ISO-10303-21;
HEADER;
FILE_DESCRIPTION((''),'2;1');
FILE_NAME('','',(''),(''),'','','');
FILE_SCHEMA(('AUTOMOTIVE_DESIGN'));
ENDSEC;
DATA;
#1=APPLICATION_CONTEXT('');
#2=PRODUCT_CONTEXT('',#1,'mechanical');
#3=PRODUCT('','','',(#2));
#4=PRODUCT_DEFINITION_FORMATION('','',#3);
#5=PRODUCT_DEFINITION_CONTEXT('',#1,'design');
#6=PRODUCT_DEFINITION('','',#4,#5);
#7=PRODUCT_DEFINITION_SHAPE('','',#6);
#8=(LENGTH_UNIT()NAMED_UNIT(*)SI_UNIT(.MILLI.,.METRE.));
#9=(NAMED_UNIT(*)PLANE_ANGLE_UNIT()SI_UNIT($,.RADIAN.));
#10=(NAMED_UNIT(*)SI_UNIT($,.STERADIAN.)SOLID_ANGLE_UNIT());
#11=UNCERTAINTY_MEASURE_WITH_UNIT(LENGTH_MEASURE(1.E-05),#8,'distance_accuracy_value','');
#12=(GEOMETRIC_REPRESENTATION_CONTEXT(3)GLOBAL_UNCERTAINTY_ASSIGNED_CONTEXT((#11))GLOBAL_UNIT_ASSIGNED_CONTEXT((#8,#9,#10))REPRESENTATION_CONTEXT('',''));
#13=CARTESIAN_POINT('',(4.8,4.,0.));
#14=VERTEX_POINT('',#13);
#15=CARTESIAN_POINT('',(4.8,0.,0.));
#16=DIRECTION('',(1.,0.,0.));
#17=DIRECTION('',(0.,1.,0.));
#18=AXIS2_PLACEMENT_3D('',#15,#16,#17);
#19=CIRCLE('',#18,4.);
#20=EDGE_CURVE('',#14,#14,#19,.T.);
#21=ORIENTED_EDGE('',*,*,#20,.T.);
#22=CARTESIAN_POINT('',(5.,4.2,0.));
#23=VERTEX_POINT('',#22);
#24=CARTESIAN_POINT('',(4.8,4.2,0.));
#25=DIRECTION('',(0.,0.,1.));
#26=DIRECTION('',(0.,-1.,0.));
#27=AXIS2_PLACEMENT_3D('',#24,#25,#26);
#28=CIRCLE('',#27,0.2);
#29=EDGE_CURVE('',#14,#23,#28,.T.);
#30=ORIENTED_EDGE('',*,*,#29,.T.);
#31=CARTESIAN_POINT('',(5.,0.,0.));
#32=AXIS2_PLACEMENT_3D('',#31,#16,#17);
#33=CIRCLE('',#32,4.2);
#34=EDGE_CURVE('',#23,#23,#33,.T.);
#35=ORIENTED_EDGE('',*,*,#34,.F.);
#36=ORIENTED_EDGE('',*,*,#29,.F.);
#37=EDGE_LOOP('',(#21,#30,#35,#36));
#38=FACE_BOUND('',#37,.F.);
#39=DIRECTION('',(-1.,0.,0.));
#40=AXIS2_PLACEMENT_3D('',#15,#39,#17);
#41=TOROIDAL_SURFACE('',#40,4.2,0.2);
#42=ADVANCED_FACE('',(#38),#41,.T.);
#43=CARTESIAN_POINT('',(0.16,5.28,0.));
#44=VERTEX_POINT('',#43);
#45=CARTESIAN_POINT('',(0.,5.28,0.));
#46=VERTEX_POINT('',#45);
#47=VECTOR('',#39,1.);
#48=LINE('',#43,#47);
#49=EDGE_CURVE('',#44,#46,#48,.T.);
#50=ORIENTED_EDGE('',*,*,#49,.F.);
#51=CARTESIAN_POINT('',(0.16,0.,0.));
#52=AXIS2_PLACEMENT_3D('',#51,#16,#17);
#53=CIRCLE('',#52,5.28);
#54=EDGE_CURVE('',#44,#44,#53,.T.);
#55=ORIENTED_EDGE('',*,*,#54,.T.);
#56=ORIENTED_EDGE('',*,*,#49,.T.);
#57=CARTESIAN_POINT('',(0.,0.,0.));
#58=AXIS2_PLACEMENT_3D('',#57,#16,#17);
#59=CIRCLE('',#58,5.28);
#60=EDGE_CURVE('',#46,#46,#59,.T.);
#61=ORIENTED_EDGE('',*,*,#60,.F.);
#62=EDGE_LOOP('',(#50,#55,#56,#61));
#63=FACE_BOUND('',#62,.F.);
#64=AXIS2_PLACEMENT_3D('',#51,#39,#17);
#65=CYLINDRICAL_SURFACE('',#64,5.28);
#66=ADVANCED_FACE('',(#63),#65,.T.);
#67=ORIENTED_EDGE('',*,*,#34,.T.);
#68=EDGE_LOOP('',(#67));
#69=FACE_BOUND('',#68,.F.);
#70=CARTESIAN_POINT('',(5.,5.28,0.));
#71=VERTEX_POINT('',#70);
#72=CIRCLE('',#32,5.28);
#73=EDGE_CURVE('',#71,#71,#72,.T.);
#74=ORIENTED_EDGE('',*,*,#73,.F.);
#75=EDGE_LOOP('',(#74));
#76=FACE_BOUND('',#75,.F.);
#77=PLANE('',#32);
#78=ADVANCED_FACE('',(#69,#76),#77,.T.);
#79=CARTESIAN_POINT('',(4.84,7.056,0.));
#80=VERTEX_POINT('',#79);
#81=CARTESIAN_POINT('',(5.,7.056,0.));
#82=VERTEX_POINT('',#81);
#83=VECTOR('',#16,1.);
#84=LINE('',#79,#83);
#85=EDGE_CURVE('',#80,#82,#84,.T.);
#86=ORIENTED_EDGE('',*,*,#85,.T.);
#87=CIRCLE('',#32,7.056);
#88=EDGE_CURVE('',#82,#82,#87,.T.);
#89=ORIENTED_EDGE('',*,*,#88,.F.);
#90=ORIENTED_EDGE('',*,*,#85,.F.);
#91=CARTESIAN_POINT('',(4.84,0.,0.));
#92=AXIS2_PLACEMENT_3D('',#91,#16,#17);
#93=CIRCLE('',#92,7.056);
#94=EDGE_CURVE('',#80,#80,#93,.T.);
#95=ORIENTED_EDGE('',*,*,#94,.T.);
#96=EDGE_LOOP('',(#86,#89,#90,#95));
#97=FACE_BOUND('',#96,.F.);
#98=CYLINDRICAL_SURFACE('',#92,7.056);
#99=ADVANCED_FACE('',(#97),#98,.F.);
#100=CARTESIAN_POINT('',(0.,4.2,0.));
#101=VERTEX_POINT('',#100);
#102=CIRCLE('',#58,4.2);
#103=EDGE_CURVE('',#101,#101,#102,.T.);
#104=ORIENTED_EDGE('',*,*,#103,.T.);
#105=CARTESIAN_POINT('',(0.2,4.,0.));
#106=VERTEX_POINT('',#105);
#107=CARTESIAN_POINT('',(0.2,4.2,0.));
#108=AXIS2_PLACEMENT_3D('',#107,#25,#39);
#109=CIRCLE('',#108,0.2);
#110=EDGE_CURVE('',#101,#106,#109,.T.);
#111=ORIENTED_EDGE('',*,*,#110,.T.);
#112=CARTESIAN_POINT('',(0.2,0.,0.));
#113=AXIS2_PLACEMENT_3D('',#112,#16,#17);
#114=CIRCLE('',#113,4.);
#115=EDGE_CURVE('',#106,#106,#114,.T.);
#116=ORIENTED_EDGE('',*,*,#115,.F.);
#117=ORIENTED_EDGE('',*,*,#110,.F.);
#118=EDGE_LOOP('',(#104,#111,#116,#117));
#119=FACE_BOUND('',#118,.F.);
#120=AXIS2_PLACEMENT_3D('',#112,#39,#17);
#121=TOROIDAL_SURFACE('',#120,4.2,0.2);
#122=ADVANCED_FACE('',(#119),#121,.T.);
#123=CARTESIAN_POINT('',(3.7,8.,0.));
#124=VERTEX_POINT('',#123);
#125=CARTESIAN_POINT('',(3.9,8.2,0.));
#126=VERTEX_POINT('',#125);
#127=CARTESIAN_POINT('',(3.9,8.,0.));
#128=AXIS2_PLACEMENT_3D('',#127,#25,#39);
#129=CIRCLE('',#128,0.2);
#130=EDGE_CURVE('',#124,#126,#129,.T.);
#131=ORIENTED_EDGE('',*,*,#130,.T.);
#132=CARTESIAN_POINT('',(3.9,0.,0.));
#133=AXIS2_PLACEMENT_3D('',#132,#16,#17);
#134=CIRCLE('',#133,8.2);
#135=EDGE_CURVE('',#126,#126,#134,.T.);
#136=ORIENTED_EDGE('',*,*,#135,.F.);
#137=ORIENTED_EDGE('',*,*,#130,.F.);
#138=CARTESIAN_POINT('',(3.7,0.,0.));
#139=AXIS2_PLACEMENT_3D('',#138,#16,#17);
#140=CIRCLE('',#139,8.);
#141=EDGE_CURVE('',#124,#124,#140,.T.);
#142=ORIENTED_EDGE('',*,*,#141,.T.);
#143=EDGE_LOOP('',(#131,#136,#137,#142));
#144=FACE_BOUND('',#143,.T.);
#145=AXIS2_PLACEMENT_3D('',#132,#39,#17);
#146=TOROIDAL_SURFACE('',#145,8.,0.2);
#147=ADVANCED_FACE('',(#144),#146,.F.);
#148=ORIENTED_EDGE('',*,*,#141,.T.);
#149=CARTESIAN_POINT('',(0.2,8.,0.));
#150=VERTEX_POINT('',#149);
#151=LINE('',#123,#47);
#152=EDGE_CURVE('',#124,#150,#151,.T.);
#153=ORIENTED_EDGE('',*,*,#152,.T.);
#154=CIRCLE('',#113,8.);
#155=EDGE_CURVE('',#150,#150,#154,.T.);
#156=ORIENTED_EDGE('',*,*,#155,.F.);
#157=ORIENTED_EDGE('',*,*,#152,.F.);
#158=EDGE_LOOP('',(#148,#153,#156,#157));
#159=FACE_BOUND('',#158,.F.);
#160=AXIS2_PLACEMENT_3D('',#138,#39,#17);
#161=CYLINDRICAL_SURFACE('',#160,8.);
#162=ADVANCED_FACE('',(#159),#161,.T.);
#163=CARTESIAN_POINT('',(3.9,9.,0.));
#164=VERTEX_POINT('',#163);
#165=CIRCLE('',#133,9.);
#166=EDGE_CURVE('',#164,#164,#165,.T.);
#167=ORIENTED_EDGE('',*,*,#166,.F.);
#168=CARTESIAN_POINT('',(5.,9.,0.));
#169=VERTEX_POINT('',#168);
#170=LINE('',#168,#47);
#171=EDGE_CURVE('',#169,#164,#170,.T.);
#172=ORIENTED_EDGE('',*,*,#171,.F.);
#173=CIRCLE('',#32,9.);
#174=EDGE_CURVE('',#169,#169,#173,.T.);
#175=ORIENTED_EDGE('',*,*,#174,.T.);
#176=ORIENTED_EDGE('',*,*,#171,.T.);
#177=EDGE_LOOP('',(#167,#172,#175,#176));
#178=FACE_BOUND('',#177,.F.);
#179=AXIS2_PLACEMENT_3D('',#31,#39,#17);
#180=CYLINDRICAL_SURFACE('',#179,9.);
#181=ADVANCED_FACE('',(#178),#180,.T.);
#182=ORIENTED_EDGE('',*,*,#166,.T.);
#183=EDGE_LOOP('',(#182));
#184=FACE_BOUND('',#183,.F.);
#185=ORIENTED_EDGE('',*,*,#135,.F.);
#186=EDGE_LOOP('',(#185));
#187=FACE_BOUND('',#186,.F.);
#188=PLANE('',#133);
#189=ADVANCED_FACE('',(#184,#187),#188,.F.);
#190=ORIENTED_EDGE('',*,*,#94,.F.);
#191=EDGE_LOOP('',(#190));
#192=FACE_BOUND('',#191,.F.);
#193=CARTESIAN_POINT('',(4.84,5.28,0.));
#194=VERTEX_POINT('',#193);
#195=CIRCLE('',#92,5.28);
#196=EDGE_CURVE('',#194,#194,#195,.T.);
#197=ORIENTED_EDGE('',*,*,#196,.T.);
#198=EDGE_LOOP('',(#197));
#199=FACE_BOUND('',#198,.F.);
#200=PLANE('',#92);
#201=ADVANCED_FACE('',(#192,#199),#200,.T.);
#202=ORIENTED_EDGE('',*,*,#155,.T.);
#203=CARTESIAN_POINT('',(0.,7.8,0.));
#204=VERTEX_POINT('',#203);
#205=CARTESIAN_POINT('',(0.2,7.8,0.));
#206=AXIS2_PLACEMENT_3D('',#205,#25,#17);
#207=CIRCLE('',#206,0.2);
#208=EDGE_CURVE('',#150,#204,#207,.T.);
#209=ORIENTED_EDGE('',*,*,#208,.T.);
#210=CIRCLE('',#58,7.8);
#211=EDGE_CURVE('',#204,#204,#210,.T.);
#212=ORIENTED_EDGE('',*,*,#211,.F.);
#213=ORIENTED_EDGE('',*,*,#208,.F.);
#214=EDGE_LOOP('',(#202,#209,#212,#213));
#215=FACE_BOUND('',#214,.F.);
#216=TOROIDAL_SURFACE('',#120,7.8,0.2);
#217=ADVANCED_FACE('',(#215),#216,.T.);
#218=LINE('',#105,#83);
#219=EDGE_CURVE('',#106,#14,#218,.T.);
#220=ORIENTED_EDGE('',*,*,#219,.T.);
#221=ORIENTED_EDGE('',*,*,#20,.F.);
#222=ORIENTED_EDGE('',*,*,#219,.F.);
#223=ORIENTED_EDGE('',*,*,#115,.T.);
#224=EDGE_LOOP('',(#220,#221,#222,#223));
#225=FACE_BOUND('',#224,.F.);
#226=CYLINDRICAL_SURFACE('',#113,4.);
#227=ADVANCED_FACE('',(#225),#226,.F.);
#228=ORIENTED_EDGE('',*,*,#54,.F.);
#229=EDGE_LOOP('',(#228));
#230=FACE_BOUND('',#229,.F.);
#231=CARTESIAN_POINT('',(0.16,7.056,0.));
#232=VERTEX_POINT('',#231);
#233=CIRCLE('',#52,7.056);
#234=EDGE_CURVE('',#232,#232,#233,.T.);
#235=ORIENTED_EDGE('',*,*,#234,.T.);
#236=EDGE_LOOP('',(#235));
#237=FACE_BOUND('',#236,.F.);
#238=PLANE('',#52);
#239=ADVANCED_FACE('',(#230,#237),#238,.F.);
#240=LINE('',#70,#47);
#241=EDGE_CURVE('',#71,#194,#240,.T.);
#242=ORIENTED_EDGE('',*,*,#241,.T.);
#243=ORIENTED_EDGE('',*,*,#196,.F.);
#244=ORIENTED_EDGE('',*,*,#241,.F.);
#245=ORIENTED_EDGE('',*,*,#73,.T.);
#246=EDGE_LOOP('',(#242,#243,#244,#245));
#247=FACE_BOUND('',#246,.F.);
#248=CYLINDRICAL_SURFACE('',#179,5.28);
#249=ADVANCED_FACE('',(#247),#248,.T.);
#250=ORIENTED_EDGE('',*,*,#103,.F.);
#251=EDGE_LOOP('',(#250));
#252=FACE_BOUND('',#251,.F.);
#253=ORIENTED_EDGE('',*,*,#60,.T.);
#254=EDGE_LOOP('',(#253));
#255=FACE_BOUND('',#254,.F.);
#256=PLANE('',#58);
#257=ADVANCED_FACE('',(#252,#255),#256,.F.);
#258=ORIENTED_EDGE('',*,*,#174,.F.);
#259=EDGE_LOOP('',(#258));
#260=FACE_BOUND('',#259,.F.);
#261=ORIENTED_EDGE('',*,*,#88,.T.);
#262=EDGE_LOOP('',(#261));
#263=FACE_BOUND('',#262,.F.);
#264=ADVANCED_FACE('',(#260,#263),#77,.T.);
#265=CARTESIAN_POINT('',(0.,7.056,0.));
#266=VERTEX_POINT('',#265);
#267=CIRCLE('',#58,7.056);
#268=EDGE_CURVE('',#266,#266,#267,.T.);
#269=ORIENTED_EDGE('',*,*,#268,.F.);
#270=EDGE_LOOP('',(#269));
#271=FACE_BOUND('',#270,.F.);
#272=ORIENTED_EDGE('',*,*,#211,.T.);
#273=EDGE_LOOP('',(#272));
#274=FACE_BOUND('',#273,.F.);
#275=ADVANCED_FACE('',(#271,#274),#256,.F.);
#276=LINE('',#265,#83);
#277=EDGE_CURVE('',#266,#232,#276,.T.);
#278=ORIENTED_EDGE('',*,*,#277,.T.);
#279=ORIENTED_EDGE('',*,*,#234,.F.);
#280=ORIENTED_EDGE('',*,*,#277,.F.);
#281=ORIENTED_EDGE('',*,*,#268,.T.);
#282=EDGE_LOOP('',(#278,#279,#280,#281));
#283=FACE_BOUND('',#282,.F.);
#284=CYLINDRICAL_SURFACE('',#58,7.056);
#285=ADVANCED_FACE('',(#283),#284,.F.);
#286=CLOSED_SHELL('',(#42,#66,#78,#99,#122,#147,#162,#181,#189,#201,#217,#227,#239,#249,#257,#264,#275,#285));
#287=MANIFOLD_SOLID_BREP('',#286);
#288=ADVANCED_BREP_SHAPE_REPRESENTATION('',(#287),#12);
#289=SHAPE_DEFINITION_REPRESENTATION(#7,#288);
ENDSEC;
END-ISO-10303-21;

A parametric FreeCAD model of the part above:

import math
import FreeCAD as App
import Part
import Sketcher

V = App.Vector

doc = App.newDocument("Part")
body = doc.addObject("PartDesign::Body", "Body")

sketch1 = body.newObject("Sketcher::SketchObject", "Sketch")
sketch1.AttachmentSupport = (doc.getObject("XY_Plane"), [""])
sketch1.MapMode = "FlatFace"
sketch1.addGeometry(Part.LineSegment(V(0, 5.28, 0), V(0, 4.2, 0)), False)
sketch1.addGeometry(Part.ArcOfCircle(Part.Circle(V(0.2, 4.2, 0), V(0, 0, 1), 0.2), math.radians(180), math.radians(270)), False)
sketch1.addGeometry(Part.LineSegment(V(0.2, 4, 0), V(4.8, 4, 0)), False)
sketch1.addGeometry(Part.ArcOfCircle(Part.Circle(V(4.8, 4.2, 0), V(0, 0, 1), 0.2), math.radians(-90), math.radians(0)), False)
sketch1.addGeometry(Part.LineSegment(V(5, 4.2, 0), V(5, 5.28, 0)), False)
sketch1.addGeometry(Part.LineSegment(V(5, 5.28, 0), V(4.84, 5.28, 0)), False)
sketch1.addGeometry(Part.LineSegment(V(4.84, 5.28, 0), V(4.84, 7.06, 0)), False)
sketch1.addGeometry(Part.LineSegment(V(4.84, 7.06, 0), V(5, 7.06, 0)), False)
sketch1.addGeometry(Part.LineSegment(V(5, 7.06, 0), V(5, 9, 0)), False)
sketch1.addGeometry(Part.LineSegment(V(5, 9, 0), V(3.9, 9, 0)), False)
sketch1.addGeometry(Part.LineSegment(V(3.9, 9, 0), V(3.9, 8.2, 0)), False)
sketch1.addGeometry(Part.ArcOfCircle(Part.Circle(V(3.9, 8, 0), V(0, 0, 1), 0.2), math.radians(180), math.radians(450)), False)
sketch1.addGeometry(Part.LineSegment(V(3.7, 8, 0), V(0.2, 8, 0)), False)
sketch1.addGeometry(Part.ArcOfCircle(Part.Circle(V(0.2, 7.8, 0), V(0, 0, 1), 0.2), math.radians(90), math.radians(180)), False)
sketch1.addGeometry(Part.LineSegment(V(0, 7.8, 0), V(0, 7.06, 0)), False)
sketch1.addGeometry(Part.LineSegment(V(0, 7.06, 0), V(0.16, 7.06, 0)), False)
sketch1.addGeometry(Part.LineSegment(V(0.16, 7.06, 0), V(0.16, 5.28, 0)), False)
sketch1.addGeometry(Part.LineSegment(V(0.16, 5.28, 0), V(0, 5.28, 0)), False)
sketch1.addConstraint(Sketcher.Constraint("Tangent", 0, 2, 1, 1))
sketch1.addConstraint(Sketcher.Constraint("Tangent", 1, 2, 2, 1))
sketch1.addConstraint(Sketcher.Constraint("Tangent", 2, 2, 3, 1))
sketch1.addConstraint(Sketcher.Constraint("Tangent", 3, 2, 4, 1))
sketch1.addConstraint(Sketcher.Constraint("Coincident", 4, 2, 5, 1))
sketch1.addConstraint(Sketcher.Constraint("Coincident", 5, 2, 6, 1))
sketch1.addConstraint(Sketcher.Constraint("Coincident", 6, 2, 7, 1))
sketch1.addConstraint(Sketcher.Constraint("Coincident", 7, 2, 8, 1))
sketch1.addConstraint(Sketcher.Constraint("Coincident", 8, 2, 9, 1))
sketch1.addConstraint(Sketcher.Constraint("Coincident", 9, 2, 10, 1))
sketch1.addConstraint(Sketcher.Constraint("Coincident", 10, 2, 11, 2))
sketch1.addConstraint(Sketcher.Constraint("Coincident", 11, 1, 12, 1))
sketch1.addConstraint(Sketcher.Constraint("Tangent", 12, 2, 13, 1))
sketch1.addConstraint(Sketcher.Constraint("Tangent", 13, 2, 14, 1))
sketch1.addConstraint(Sketcher.Constraint("Coincident", 14, 2, 15, 1))
sketch1.addConstraint(Sketcher.Constraint("Coincident", 15, 2, 16, 1))
sketch1.addConstraint(Sketcher.Constraint("Coincident", 16, 2, 17, 1))
sketch1.addConstraint(Sketcher.Constraint("Coincident", 17, 2, 0, 1))
sketch1.addConstraint(Sketcher.Constraint("Vertical", 0))
sketch1.addConstraint(Sketcher.Constraint("Horizontal", 2))
sketch1.addConstraint(Sketcher.Constraint("Vertical", 4))
sketch1.addConstraint(Sketcher.Constraint("Horizontal", 5))
sketch1.addConstraint(Sketcher.Constraint("Vertical", 6))
sketch1.addConstraint(Sketcher.Constraint("Horizontal", 7))
sketch1.addConstraint(Sketcher.Constraint("Vertical", 8))
sketch1.addConstraint(Sketcher.Constraint("Horizontal", 9))
sketch1.addConstraint(Sketcher.Constraint("Vertical", 10))
sketch1.addConstraint(Sketcher.Constraint("Horizontal", 12))
sketch1.addConstraint(Sketcher.Constraint("Vertical", 14))
sketch1.addConstraint(Sketcher.Constraint("Horizontal", 15))
sketch1.addConstraint(Sketcher.Constraint("Vertical", 16))
sketch1.addConstraint(Sketcher.Constraint("Horizontal", 17))
sketch1.addConstraint(Sketcher.Constraint("Equal", 1, 3))
sketch1.addConstraint(Sketcher.Constraint("Equal", 3, 11))
sketch1.addConstraint(Sketcher.Constraint("Equal", 11, 13))
sketch1.addConstraint(Sketcher.Constraint("PointOnObject", 0, 2, -2))
sketch1.addConstraint(Sketcher.Constraint("PointOnObject", 13, 2, -2))
sketch1.addConstraint(Sketcher.Constraint("Horizontal", 7, 2, 14, 2))
sketch1.addConstraint(Sketcher.Constraint("Horizontal", 5, 2, 16, 2))
sketch1.addConstraint(Sketcher.Constraint("Vertical", 4, 2, 7, 2))
sketch1.addConstraint(Sketcher.Constraint("Vertical", 11, 3, 9, 2))
sketch1.addConstraint(Sketcher.Constraint("Equal", 7, 15))
sketch1.addConstraint(Sketcher.Constraint("Radius", 1, 0.2))
sketch1.addConstraint(Sketcher.Constraint("DistanceX", 2, 1, 2, 2, 4.6))
sketch1.addConstraint(Sketcher.Constraint("DistanceX", 9, 2, 9, 1, 1.1))
sketch1.addConstraint(Sketcher.Constraint("DistanceY", 10, 2, 10, 1, 0.8))
sketch1.addConstraint(Sketcher.Constraint("DistanceY", -1, 1, 11, 3, 8.0))
sketch1.addConstraint(Sketcher.Constraint("DistanceY", -1, 1, 1, 2, 4.0))
sketch1.addConstraint(Sketcher.Constraint("DistanceY", -1, 1, 11, 1, 8.0))
sketch1.addConstraint(Sketcher.Constraint("DistanceX", 5, 2, 5, 1, 0.16))
sketch1.addConstraint(Sketcher.Constraint("DistanceY", 0, 2, 0, 1, 1.08))
sketch1.addConstraint(Sketcher.Constraint("DistanceY", 6, 1, 6, 2, 1.776))
revolution = body.newObject("PartDesign::Revolution", "Revolution")
revolution.Profile = sketch1
revolution.ReferenceAxis = (sketch1, ["H_Axis"])
revolution.Angle = 360

doc.recompute()
